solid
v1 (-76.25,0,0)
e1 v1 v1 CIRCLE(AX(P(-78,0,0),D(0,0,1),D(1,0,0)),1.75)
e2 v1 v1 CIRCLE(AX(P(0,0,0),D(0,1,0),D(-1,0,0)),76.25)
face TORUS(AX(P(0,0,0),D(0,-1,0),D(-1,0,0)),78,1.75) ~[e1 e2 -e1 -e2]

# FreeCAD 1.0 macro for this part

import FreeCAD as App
import Part
import Sketcher
Q = App.Units.Quantity

doc = App.newDocument("Part")
params = doc.addObject("Spreadsheet::Sheet", "Params")
for row, (alias, value) in enumerate([
    ("sketch1_diameter", "3.5 mm"),
    ("revolution_angle", "360 deg"),
], start=1):
    params.set(f"A{row}", alias)
    params.set(f"B{row}", "=" + value)
    params.setAlias(f"B{row}", alias)

body = doc.addObject("PartDesign::Body", "Body")

sketch1 = body.newObject("Sketcher::SketchObject", "Sketch")
sketch1.AttachmentSupport = (doc.getObject("XY_Plane"), [""])
sketch1.MapMode = "FlatFace"
sketch1.addGeometry(Part.Circle(App.Vector(-78, 0, 0), App.Vector(0, 0, 1), 1.8), False)
sketch1.addConstraint(Sketcher.Constraint("PointOnObject", 0, 3, -1))
sketch1.addConstraint(Sketcher.Constraint("Diameter", 0, Q("3.5 mm")))
sketch1.addConstraint(Sketcher.Constraint("DistanceX", 0, 3, -1, 1, Q("78 mm")))
sketch1.setExpression("Constraints[1]", "Params.sketch1_diameter")
revolution = body.newObject("PartDesign::Revolution", "Revolution")
revolution.Profile = sketch1
revolution.ReferenceAxis = (sketch1, ["V_Axis"])
revolution.setExpression("Angle", "Params.revolution_angle")

doc.recompute()
